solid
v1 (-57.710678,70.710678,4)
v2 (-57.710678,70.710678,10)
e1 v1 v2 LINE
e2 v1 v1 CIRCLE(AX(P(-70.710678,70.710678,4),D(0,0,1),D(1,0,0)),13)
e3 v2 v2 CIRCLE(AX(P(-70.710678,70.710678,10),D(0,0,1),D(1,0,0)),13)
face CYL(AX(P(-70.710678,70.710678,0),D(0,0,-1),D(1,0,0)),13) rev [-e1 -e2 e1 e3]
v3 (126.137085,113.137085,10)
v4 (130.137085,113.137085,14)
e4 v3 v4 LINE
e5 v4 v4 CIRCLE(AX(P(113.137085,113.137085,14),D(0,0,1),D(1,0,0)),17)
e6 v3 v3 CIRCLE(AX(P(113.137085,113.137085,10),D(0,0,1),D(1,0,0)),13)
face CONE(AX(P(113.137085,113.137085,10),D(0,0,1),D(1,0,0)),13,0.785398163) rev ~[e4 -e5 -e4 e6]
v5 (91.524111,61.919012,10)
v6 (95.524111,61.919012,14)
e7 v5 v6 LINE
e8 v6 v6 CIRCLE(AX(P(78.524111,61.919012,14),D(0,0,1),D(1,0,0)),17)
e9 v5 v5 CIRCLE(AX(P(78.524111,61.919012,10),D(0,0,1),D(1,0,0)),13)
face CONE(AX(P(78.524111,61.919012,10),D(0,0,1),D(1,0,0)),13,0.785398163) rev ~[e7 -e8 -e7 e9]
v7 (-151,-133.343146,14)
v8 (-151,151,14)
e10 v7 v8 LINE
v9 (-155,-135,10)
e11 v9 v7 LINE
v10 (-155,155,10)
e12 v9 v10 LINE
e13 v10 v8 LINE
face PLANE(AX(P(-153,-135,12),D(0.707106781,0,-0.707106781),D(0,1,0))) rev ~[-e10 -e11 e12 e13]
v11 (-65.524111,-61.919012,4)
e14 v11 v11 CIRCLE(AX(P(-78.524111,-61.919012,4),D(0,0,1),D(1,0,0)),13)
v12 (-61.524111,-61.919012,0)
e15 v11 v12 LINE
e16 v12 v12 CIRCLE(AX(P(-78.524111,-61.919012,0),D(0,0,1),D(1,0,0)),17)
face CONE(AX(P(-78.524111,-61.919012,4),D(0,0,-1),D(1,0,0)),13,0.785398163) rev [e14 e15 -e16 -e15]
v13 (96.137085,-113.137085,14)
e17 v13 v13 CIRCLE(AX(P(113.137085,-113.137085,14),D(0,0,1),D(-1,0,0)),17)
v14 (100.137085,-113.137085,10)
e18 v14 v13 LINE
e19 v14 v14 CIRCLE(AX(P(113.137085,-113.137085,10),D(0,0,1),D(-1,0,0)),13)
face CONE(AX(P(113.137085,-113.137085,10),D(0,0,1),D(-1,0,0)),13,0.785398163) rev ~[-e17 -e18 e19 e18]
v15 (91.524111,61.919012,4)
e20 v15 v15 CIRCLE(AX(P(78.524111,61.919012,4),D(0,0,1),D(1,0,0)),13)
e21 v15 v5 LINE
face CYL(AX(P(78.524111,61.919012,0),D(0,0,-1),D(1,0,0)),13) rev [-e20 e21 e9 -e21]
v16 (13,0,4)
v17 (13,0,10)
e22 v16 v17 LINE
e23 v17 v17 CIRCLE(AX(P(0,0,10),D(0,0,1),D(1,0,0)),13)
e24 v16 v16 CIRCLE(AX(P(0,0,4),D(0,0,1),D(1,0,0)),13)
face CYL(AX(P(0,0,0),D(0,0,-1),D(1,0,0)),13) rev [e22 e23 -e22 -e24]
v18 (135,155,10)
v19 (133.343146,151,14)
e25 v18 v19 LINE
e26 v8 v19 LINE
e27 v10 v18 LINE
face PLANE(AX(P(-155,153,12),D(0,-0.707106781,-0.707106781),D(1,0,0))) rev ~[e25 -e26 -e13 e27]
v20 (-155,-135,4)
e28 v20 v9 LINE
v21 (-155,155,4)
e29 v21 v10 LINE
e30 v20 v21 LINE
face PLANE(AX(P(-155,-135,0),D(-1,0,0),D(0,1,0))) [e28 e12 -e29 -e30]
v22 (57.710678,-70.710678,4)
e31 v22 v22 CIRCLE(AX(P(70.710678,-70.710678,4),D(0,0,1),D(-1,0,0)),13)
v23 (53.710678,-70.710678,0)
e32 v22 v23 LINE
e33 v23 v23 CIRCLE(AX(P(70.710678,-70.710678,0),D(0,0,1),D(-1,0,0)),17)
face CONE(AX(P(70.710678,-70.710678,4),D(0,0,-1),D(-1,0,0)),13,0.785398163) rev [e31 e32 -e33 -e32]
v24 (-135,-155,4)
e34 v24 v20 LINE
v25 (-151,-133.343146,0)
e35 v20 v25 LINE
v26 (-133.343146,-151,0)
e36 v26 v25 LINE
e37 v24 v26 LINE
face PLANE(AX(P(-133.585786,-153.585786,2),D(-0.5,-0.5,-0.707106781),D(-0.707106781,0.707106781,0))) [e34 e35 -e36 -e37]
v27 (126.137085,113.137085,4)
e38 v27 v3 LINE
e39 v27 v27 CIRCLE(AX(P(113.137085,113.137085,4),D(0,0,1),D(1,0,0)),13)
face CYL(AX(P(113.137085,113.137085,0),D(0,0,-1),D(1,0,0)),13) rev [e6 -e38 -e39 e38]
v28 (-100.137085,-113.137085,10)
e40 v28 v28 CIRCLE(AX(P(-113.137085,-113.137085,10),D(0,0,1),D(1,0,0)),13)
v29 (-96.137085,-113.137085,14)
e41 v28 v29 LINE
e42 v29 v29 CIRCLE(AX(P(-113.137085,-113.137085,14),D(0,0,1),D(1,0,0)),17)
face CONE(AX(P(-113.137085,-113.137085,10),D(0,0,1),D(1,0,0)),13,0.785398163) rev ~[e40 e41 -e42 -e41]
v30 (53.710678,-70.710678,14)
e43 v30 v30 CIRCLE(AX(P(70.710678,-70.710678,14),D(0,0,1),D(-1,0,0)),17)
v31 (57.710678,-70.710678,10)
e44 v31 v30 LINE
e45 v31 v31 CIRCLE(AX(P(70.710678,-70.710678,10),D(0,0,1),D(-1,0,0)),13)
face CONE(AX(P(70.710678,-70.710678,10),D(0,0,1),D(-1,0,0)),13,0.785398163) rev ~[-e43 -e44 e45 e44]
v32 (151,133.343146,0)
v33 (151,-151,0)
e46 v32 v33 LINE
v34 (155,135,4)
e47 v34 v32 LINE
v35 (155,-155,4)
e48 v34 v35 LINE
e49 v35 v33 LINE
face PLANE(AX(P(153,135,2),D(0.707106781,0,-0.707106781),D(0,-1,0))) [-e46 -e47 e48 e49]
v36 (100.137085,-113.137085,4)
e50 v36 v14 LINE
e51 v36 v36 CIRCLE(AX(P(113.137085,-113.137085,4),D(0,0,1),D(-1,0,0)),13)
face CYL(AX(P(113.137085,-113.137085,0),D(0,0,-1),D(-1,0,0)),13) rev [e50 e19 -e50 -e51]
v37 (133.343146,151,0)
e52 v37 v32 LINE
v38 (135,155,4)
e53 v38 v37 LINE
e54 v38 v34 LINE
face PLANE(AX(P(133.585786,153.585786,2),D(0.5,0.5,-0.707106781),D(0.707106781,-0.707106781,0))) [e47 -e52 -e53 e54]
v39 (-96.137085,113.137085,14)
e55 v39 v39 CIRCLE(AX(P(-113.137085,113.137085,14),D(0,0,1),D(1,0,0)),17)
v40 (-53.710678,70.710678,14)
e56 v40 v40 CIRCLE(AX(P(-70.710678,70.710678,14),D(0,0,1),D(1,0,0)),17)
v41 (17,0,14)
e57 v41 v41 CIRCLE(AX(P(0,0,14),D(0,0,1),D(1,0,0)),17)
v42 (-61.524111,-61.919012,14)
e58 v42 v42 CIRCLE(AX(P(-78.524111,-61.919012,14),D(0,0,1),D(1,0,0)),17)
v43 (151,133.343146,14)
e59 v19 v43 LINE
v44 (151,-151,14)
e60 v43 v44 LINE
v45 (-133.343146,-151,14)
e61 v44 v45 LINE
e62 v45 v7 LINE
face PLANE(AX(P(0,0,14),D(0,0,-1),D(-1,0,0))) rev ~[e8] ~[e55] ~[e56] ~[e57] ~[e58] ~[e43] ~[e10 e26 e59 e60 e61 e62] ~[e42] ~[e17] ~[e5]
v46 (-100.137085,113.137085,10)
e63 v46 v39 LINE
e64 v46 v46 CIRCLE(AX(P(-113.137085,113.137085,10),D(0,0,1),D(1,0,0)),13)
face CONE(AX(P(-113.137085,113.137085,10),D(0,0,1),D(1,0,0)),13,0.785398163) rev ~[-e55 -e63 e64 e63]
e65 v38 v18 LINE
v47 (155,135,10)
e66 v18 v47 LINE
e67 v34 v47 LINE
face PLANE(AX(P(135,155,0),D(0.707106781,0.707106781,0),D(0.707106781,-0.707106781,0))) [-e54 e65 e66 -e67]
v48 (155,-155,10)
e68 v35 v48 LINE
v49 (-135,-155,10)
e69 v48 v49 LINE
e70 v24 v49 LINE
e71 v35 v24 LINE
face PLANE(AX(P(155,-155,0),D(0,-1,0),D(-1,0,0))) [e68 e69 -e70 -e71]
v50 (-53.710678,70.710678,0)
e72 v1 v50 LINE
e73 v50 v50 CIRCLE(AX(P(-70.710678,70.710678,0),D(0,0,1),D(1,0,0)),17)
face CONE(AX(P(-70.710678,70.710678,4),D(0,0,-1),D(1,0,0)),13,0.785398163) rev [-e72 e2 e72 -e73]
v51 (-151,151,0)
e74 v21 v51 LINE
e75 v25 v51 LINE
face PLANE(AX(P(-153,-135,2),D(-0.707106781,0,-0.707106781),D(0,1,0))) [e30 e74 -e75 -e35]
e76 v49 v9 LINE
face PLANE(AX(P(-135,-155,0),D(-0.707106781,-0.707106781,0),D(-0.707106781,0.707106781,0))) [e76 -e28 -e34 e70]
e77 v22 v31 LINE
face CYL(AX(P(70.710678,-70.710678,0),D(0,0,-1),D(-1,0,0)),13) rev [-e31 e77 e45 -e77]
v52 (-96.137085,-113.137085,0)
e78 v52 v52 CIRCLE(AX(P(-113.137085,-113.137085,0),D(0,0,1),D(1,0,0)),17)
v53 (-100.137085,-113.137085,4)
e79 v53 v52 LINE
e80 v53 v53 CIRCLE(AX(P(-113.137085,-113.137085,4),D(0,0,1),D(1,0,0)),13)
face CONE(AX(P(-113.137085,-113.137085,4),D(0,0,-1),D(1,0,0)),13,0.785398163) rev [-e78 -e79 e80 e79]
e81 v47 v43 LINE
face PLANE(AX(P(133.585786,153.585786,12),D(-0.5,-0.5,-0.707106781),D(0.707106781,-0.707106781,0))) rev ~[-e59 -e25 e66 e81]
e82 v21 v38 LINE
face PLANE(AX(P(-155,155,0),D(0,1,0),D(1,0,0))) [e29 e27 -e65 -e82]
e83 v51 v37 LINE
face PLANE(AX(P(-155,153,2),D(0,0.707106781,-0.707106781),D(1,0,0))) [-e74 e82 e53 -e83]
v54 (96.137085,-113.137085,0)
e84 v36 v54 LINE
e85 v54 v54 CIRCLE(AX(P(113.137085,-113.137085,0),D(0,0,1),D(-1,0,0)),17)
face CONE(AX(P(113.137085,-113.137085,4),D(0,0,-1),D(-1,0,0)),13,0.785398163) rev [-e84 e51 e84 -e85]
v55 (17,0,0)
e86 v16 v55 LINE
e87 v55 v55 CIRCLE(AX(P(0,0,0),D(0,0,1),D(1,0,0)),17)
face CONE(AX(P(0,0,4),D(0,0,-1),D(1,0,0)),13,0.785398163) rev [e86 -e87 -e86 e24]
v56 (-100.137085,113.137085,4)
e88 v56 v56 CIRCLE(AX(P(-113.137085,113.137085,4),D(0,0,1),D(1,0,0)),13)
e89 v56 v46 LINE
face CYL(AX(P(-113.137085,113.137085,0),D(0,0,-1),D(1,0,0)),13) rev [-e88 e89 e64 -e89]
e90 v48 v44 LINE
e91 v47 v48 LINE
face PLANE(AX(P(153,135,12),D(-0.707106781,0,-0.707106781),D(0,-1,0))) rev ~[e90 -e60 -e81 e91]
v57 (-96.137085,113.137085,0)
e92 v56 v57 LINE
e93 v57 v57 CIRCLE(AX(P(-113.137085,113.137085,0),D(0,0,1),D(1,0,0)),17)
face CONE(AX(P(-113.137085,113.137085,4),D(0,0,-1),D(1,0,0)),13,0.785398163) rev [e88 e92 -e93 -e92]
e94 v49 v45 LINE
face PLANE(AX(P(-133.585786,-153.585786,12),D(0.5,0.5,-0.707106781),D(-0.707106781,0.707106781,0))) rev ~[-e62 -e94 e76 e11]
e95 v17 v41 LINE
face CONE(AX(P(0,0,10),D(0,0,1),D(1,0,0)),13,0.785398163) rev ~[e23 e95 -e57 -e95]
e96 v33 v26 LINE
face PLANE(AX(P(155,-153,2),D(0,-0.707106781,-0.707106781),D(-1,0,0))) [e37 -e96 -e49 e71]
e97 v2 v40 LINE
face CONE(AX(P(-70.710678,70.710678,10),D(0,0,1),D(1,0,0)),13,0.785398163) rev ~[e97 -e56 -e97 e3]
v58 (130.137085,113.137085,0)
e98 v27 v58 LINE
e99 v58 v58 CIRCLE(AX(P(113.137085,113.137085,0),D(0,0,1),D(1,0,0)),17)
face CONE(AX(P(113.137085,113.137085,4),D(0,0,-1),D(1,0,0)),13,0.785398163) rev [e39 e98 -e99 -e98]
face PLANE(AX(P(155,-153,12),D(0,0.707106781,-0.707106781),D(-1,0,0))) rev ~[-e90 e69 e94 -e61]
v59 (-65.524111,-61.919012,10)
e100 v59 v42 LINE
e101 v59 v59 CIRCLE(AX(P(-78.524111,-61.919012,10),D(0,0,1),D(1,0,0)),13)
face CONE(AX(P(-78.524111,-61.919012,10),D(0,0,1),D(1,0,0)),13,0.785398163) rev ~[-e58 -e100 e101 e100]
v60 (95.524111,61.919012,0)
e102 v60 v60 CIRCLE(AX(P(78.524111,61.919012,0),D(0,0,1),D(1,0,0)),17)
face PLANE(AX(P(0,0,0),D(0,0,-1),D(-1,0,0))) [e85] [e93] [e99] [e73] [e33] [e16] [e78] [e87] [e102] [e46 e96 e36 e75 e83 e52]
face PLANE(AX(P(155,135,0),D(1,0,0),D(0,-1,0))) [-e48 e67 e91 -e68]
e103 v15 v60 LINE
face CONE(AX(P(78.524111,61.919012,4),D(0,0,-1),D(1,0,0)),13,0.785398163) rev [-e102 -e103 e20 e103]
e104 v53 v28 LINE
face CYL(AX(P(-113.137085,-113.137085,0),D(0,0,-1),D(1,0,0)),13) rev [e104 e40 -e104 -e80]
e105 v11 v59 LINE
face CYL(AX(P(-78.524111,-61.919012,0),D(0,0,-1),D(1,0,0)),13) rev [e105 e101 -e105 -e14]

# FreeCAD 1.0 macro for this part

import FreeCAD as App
import Part
import Sketcher
Q = App.Units.Quantity


def edges_at(feature, points):
    """Names of the edges that pass closest to the given points."""
    edges = feature.Shape.Edges
    near = lambda p: min(range(len(edges)), key=lambda i: edges[i].distToShape(Part.Vertex(*p))[0])
    return sorted({f"Edge{near(p) + 1}" for p in points})


def add_polygon(sketch, points):
    """Adds a closed chain of lines whose ends are joined by coincident constraints."""
    first, n = sketch.GeometryCount, len(points)
    for a, b in zip(points, points[1:] + points[:1]):
        sketch.addGeometry(Part.LineSegment(App.Vector(*a, 0), App.Vector(*b, 0)), False)
    for i in range(n):
        sketch.addConstraint(Sketcher.Constraint("Coincident", first + i, 2, first + (i + 1) % n, 1))

doc = App.newDocument("Part")
body = doc.addObject("PartDesign::Body", "Body")

# Sketch on XY plane
sketch1 = doc.addObject("Sketcher::SketchObject", "Sketch")
body.addObject(sketch1)
sketch1.AttachmentSupport = (doc.XY_Plane, [""])
sketch1.MapMode = "FlatFace"
add_polygon(sketch1, [(155, 135), (135, 155), (-155, 155), (-155, -135), (-135, -155), (155, -155)])  # lines 0-5
sketch1.addGeometry(Part.Circle(App.Vector(113, -113, 0), App.Vector(0, 0, 1), 13), False)  # 6
sketch1.addGeometry(Part.Circle(App.Vector(71, -71, 0), App.Vector(0, 0, 1), 13), False)  # 7
sketch1.addGeometry(Part.Circle(App.Vector(-113, -113, 0), App.Vector(0, 0, 1), 13), False)  # 8
sketch1.addGeometry(Part.Circle(App.Vector(-79, -62, 0), App.Vector(0, 0, 1), 13), False)  # 9
sketch1.addGeometry(Part.Circle(App.Vector(79, 62, 0), App.Vector(0, 0, 1), 13), False)  # 10
sketch1.addGeometry(Part.Circle(App.Vector(113, 113, 0), App.Vector(0, 0, 1), 13), False)  # 11
sketch1.addGeometry(Part.Circle(App.Vector(0, 0, 0), App.Vector(0, 0, 1), 13), False)  # 12
sketch1.addGeometry(Part.Circle(App.Vector(-71, 71, 0), App.Vector(0, 0, 1), 13), False)  # 13
sketch1.addGeometry(Part.Circle(App.Vector(-113, 113, 0), App.Vector(0, 0, 1), 13), False)  # 14
sketch1.addConstraint(Sketcher.Constraint("Horizontal", 1))
sketch1.addConstraint(Sketcher.Constraint("Vertical", 2))
sketch1.addConstraint(Sketcher.Constraint("Horizontal", 4))
sketch1.addConstraint(Sketcher.Constraint("Vertical", 5))
sketch1.addConstraint(Sketcher.Constraint("Coincident", 12, 3, -1, 1))
sketch1.addConstraint(Sketcher.Constraint("Equal", 6, 7))
sketch1.addConstraint(Sketcher.Constraint("Equal", 7, 8))
sketch1.addConstraint(Sketcher.Constraint("Equal", 8, 9))
sketch1.addConstraint(Sketcher.Constraint("Equal", 9, 10))
sketch1.addConstraint(Sketcher.Constraint("Equal", 10, 11))
sketch1.addConstraint(Sketcher.Constraint("Equal", 11, 12))
sketch1.addConstraint(Sketcher.Constraint("Equal", 12, 13))
sketch1.addConstraint(Sketcher.Constraint("Equal", 13, 14))
sketch1.addConstraint(Sketcher.Constraint("Symmetric", 9, 3, 10, 3, -1, 1))
sketch1.addConstraint(Sketcher.Constraint("Symmetric", 8, 3, 11, 3, -1, 1))
sketch1.addConstraint(Sketcher.Constraint("Symmetric", 7, 3, 13, 3, -1, 1))
sketch1.addConstraint(Sketcher.Constraint("Symmetric", 6, 3, 14, 3, -1, 1))
sketch1.addConstraint(Sketcher.Constraint("Symmetric", 0, 2, 3, 2, -1, 1))
sketch1.addConstraint(Sketcher.Constraint("Symmetric", 2, 2, 5, 2, -1, 1))
sketch1.addConstraint(Sketcher.Constraint("Symmetric", 6, 3, 8, 3, -2))
sketch1.addConstraint(Sketcher.Constraint("Equal", 4, 2))
sketch1.addConstraint(Sketcher.Constraint("Diameter", 6, Q("26 mm")))
sketch1.addConstraint(Sketcher.Constraint("DistanceX", 1, 2, 1, 1, Q("290 mm")))
sketch1.addConstraint(Sketcher.Constraint("Angle", 0, Q("135 deg")))
sketch1.addConstraint(Sketcher.Constraint("DistanceX", -1, 1, 0, 2, Q("135 mm")))
sketch1.addConstraint(Sketcher.Constraint("DistanceX", -1, 1, 7, 3, Q("70.710678 mm")))
sketch1.addConstraint(Sketcher.Constraint("DistanceY", 7, 3, -1, 1, Q("70.710678 mm")))
sketch1.addConstraint(Sketcher.Constraint("DistanceX", 9, 3, -1, 1, Q("78.524111 mm")))
sketch1.addConstraint(Sketcher.Constraint("DistanceX", 8, 3, 6, 3, Q("226.27417 mm")))
sketch1.addConstraint(Sketcher.Constraint("DistanceY", 7, 3, 10, 3, Q("132.62969 mm")))
sketch1.addConstraint(Sketcher.Constraint("DistanceY", 6, 3, 11, 3, Q("226.27417 mm")))
pad1 = doc.addObject("PartDesign::Pad", "Pad")
body.addObject(pad1)
pad1.Profile = sketch1
pad1.Length = 14
doc.recompute()

chamfer = doc.addObject("PartDesign::Chamfer", "Chamfer")
body.addObject(chamfer)
chamfer.Base = (pad1, edges_at(pad1, [
    (10, -155, 14),
    (155, -10, 14),
    (145, 145, 14),
    (-126.137, -113.137, 0),
    (-126.137, -113.137, 14),
    (-10, 155, 14),
    (-91.524, -61.919, 0),
    (-91.524, -61.919, 14),
    (65.524, 61.919, 0),
    (65.524, 61.919, 14),
    (100.137, 113.137, 0),
    (100.137, 113.137, 14),
    (-83.711, 70.711, 0),
    (-83.711, 70.711, 14),
    (-126.137, 113.137, 0),
    (-126.137, 113.137, 14),
    (83.711, -70.711, 0),
    (83.711, -70.711, 14),
    (-155, 10, 14),
    (-13, 0, 0),
    (-13, 0, 14),
    (126.137, -113.137, 0),
    (126.137, -113.137, 14),
    (-10, 155, 0),
    (145, 145, 0),
    (155, -10, 0),
    (-145, -145, 14),
    (10, -155, 0),
    (-145, -145, 0),
    (-155, 10, 0),
]))
chamfer.Size = 4

doc.recompute()
